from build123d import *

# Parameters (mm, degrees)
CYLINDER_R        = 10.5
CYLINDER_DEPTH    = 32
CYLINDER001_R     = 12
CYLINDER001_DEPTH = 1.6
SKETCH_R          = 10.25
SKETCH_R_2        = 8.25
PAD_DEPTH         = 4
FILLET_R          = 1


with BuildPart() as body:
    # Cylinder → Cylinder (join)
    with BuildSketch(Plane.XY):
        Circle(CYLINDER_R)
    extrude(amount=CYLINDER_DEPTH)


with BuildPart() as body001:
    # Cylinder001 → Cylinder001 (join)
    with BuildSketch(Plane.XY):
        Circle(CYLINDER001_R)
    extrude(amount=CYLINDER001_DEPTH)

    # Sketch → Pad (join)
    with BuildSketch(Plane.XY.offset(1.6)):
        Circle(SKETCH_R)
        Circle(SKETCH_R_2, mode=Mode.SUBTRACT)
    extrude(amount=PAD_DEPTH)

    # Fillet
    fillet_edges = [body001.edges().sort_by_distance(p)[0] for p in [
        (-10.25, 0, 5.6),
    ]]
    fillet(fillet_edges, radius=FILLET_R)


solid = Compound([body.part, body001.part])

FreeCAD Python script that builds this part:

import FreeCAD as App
import Part
import Sketcher
from FreeCAD import Vector


def edges_at(feature, points):
    """Names of the edges that pass closest to the given points."""
    edges = feature.Shape.Edges
    near = lambda p: min(range(len(edges)), key=lambda i: edges[i].distToShape(Part.Vertex(*p))[0])
    return sorted({f"Edge{near(p) + 1}" for p in points})

doc = App.newDocument("Part")
body = doc.addObject("PartDesign::Body", "Body")

sketch1 = body.newObject("Sketcher::SketchObject", "Sketch")
sketch1.AttachmentSupport = (doc.getObject("XY_Plane"), [""])
sketch1.MapMode = "FlatFace"
sketch1.addGeometry(Part.Circle(Vector(0, 0, 0), Vector(0, 0, 1), 10), False)
sketch1.addConstraint([
    Sketcher.Constraint("Coincident", 0, 3, -1, 1),
    Sketcher.Constraint("Diameter", 0, 21.0),
])
pad1 = body.newObject("PartDesign::Pad", "Pad")
pad1.Profile = sketch1
pad1.Length = 32
body2 = doc.addObject("PartDesign::Body", "Body001")

sketch2 = body2.newObject("Sketcher::SketchObject", "Sketch001")
sketch2.AttachmentSupport = (doc.getObject("XY_Plane001"), [""])
sketch2.MapMode = "FlatFace"
sketch2.addGeometry(Part.Circle(Vector(0, 0, 0), Vector(0, 0, 1), 12), False)
sketch2.addConstraint([
    Sketcher.Constraint("Coincident", 0, 3, -1, 1),
    Sketcher.Constraint("Diameter", 0, 24.0),
])
pad2 = body2.newObject("PartDesign::Pad", "Pad001")
pad2.Profile = sketch2
pad2.Length = 1.6

sketch3 = body2.newObject("Sketcher::SketchObject", "Sketch002")
sketch3.AttachmentSupport = (doc.getObject("XY_Plane001"), [""])
sketch3.MapMode = "FlatFace"
sketch3.AttachmentOffset = App.Placement(Vector(0, 0, 1.6), App.Rotation())
sketch3.addGeometry([
    Part.Circle(Vector(0, 0, 0), Vector(0, 0, 1), 10),
    Part.Circle(Vector(0, 0, 0), Vector(0, 0, 1), 8),
], False)
sketch3.addConstraint([
    Sketcher.Constraint("Coincident", 0, 3, -1, 1),
    Sketcher.Constraint("Coincident", 1, 3, -1, 1),
    Sketcher.Constraint("Diameter", 0, 20.5),
    Sketcher.Constraint("Diameter", 1, 16.5),
])
pad3 = body2.newObject("PartDesign::Pad", "Pad002")
pad3.Profile = sketch3
pad3.Length = 4
doc.recompute()

fillet = body2.newObject("PartDesign::Fillet", "Fillet")
fillet.Base = (pad3, edges_at(pad3, [(-10.25, 0, 5.6)]))
fillet.Radius = 1

doc.recompute()
